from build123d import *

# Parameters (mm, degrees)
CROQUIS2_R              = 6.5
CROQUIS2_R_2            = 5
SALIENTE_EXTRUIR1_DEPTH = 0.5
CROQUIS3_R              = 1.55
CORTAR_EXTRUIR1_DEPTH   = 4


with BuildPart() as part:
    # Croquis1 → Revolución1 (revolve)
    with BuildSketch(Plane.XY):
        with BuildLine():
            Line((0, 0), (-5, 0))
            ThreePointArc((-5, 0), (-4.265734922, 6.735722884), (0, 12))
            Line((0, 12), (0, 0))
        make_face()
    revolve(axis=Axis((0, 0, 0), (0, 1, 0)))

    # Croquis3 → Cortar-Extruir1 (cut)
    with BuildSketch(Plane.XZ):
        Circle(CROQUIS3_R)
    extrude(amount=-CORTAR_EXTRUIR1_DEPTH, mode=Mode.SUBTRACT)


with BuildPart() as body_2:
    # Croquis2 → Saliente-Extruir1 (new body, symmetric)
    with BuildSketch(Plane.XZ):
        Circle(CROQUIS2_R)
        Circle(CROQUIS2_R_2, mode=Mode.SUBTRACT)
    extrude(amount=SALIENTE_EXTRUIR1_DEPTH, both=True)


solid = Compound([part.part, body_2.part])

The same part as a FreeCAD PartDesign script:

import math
import FreeCAD as App
import Part
import Sketcher

V = App.Vector
Q = App.Units.Quantity

doc = App.newDocument("Part")
body = doc.addObject("PartDesign::Body", "Body")

sketch1 = body.newObject("Sketcher::SketchObject", "Sketch")
sketch1.AttachmentSupport = (doc.getObject("XY_Plane"), [""])
sketch1.MapMode = "FlatFace"
sketch1.addGeometry([
    Part.LineSegment(V(-5, 0, 0), V(0, 0, 0)),
    Part.LineSegment(V(0, 0, 0), V(0, 12, 0)),
    Part.ArcOfCircle(Part.Circle(V(7, 2, 0), V(0, 0, 1), 12), math.radians(125), math.radians(190)),
], False)
sketch1.addConstraint([
    Sketcher.Constraint("Coincident", 0, 2, 1, 1),
    Sketcher.Constraint("Coincident", 1, 2, 2, 1),
    Sketcher.Constraint("Coincident", 2, 2, 0, 1),
    Sketcher.Constraint("Horizontal", 0),
    Sketcher.Constraint("Vertical", 1),
    Sketcher.Constraint("Coincident", 0, 2, -1, 1),
    Sketcher.Constraint("Radius", 2, Q("12 mm")),
    Sketcher.Constraint("DistanceX", 0, 1, 0, 2, Q("5 mm")),
    Sketcher.Constraint("DistanceY", 1, 1, 1, 2, Q("12 mm")),
])
revolution = body.newObject("PartDesign::Revolution", "Revolution")
revolution.Profile = sketch1
revolution.ReferenceAxis = (sketch1, ["V_Axis"])
revolution.Angle = 360

sketch2 = body.newObject("Sketcher::SketchObject", "Sketch001")
sketch2.AttachmentSupport = (doc.getObject("XZ_Plane"), [""])
sketch2.MapMode = "FlatFace"
sketch2.addGeometry(Part.Circle(V(0, 0, 0), V(0, 0, 1), 1.6), False)
sketch2.addConstraint([
    Sketcher.Constraint("Coincident", 0, 3, -1, 1),
    Sketcher.Constraint("Diameter", 0, Q("3.1 mm")),
])
pocket1 = body.newObject("PartDesign::Pocket", "Pocket")
pocket1.Profile = sketch2
pocket1.Length = 4
body2 = doc.addObject("PartDesign::Body", "Body001")

sketch3 = body2.newObject("Sketcher::SketchObject", "Sketch002")
sketch3.AttachmentSupport = (doc.getObject("XZ_Plane001"), [""])
sketch3.MapMode = "FlatFace"
sketch3.addGeometry([
    Part.Circle(V(0, 0, 0), V(0, 0, 1), 6),
    Part.Circle(V(0, 0, 0), V(0, 0, 1), 5),
], False)
sketch3.addConstraint([
    Sketcher.Constraint("Coincident", 0, 3, -1, 1),
    Sketcher.Constraint("Coincident", 1, 3, -1, 1),
    Sketcher.Constraint("Diameter", 0, Q("13 mm")),
    Sketcher.Constraint("Diameter", 1, Q("10 mm")),
])
pad1 = body2.newObject("PartDesign::Pad", "Pad")
pad1.Profile = sketch3
pad1.Length = 1
pad1.Midplane = True

doc.recompute()
